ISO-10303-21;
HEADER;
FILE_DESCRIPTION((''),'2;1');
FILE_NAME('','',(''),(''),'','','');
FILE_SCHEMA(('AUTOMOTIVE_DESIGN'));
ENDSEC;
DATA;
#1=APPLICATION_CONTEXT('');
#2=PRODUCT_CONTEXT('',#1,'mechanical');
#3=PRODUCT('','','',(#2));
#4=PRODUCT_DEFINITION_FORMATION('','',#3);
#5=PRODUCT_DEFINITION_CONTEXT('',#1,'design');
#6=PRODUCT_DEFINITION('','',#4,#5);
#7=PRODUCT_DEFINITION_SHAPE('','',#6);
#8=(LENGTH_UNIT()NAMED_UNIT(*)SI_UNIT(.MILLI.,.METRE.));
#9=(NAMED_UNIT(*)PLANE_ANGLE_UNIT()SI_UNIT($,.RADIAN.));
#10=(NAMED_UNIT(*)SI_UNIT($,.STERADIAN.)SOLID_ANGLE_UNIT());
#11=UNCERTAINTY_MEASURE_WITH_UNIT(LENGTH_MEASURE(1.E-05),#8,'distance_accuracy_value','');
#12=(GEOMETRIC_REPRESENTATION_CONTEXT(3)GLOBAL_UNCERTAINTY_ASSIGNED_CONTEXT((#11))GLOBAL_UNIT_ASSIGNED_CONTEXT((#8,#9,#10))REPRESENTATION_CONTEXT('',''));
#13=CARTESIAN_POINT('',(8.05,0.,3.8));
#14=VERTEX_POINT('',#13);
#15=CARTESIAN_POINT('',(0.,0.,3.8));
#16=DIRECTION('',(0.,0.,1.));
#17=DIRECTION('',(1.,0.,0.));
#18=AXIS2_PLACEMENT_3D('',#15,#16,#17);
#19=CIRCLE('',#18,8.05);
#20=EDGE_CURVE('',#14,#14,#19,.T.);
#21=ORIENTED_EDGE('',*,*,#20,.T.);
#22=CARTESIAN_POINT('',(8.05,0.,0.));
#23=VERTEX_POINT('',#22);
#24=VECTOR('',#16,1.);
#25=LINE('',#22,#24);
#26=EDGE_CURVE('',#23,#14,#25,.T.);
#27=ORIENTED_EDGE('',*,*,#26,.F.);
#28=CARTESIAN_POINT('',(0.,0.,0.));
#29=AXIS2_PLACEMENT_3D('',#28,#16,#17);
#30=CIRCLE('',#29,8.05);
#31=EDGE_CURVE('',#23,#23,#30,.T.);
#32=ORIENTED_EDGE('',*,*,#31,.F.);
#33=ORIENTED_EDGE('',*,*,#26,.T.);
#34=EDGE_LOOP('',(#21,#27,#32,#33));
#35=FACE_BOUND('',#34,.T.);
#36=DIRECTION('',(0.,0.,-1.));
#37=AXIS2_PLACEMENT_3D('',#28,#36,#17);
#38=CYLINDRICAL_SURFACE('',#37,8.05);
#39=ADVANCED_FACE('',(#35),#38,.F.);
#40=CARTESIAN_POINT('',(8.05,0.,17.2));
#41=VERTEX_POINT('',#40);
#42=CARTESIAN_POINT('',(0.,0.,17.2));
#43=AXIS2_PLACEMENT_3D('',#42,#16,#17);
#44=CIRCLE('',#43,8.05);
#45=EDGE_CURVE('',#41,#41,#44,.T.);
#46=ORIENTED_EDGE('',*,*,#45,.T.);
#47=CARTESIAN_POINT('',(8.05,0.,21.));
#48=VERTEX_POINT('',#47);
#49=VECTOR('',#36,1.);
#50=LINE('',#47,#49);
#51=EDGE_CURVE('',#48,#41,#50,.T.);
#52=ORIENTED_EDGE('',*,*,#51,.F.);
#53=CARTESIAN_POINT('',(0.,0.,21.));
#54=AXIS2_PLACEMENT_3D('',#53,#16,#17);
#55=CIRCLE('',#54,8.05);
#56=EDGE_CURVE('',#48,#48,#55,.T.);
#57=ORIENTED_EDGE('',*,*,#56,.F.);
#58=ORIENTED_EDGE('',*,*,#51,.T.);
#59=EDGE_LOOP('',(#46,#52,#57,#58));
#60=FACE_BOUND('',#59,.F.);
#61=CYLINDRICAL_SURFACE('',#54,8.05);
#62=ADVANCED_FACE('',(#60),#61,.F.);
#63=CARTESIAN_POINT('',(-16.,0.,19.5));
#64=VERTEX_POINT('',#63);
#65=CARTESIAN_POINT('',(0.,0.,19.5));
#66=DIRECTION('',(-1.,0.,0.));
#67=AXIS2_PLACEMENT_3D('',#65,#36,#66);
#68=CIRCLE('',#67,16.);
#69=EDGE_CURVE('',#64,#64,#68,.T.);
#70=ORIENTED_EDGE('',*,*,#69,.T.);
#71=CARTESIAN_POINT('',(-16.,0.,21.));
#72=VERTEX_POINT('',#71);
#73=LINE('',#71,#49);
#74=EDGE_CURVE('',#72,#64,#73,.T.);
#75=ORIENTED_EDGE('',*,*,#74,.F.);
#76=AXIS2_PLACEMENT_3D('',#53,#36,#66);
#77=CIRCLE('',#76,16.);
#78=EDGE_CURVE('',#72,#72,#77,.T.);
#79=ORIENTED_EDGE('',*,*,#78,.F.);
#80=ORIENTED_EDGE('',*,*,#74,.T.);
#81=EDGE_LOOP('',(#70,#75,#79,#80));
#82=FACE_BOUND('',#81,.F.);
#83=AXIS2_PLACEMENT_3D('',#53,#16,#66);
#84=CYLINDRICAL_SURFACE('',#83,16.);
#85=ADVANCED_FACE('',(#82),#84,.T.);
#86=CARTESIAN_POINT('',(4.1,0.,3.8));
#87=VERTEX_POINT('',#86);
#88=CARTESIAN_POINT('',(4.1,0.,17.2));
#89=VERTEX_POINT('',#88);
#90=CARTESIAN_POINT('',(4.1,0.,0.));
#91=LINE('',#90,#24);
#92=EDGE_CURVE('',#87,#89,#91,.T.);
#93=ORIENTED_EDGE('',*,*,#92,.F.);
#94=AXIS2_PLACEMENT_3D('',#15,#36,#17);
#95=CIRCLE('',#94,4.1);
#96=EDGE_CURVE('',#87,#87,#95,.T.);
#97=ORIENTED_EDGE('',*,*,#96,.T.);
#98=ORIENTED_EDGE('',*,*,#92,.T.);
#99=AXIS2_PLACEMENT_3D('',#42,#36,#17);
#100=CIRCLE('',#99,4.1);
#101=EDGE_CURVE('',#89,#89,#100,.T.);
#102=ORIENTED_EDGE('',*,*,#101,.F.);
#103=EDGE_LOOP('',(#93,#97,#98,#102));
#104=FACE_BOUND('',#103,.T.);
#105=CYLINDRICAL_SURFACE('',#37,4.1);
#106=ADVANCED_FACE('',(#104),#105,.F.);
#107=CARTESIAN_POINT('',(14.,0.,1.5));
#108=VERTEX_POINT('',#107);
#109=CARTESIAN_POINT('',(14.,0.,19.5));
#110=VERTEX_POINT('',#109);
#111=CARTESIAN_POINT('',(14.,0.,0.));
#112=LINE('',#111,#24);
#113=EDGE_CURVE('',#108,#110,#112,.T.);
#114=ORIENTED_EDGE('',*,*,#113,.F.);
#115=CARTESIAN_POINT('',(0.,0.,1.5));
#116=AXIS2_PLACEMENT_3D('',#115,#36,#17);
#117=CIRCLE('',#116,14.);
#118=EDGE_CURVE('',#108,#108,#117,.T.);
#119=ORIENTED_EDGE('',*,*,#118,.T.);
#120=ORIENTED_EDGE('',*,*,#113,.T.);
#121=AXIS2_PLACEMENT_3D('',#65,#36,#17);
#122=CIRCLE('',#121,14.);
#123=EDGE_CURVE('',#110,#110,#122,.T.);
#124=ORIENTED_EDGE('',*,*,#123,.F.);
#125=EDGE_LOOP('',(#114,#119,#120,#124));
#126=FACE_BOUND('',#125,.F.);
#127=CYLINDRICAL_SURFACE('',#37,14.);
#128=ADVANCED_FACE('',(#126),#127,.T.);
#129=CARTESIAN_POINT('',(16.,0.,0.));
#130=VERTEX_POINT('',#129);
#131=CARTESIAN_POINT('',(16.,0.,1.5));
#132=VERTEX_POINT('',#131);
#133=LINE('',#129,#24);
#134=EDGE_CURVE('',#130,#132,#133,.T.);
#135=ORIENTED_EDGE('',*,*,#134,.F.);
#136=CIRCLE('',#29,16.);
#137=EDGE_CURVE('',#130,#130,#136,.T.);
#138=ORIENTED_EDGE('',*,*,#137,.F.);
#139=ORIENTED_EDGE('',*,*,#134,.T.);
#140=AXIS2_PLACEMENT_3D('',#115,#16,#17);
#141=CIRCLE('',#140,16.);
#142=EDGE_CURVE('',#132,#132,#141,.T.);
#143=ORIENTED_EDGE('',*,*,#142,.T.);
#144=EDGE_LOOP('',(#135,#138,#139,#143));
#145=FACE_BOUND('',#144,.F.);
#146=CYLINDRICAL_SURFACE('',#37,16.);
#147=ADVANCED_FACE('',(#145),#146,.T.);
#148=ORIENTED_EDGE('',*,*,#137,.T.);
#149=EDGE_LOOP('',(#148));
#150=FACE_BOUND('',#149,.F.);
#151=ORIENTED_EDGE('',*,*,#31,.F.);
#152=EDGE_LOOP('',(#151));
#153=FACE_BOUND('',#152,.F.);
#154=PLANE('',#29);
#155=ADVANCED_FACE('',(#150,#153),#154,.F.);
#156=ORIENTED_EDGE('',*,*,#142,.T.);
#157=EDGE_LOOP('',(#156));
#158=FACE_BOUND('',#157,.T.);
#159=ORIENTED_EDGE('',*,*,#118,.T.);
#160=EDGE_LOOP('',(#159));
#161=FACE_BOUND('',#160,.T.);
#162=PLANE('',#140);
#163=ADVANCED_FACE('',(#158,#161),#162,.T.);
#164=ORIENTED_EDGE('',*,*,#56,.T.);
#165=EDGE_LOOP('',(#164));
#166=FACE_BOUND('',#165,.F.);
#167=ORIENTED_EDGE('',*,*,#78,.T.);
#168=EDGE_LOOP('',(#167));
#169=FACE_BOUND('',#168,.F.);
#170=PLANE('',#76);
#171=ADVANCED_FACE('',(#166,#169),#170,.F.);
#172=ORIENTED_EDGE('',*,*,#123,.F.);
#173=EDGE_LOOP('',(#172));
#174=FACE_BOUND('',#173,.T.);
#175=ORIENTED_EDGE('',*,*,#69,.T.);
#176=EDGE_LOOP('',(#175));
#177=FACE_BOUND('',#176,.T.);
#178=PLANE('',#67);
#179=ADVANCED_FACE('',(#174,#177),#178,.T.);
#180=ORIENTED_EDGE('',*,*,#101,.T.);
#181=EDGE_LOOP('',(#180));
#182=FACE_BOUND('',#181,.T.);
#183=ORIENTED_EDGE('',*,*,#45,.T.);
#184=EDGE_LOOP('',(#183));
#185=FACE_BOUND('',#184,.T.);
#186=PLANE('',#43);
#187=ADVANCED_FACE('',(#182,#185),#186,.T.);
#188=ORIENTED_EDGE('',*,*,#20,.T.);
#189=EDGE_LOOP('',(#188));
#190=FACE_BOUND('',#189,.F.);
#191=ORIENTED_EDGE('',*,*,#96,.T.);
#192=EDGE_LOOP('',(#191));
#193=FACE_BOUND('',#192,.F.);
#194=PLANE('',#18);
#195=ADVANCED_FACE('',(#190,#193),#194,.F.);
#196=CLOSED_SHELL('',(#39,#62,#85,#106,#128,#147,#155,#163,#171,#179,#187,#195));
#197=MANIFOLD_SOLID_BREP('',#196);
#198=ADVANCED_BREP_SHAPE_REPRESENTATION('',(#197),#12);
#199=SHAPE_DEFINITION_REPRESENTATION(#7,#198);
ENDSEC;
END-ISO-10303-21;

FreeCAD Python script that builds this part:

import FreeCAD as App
import Part
import Sketcher
Q = App.Units.Quantity

doc = App.newDocument("Part")
body = doc.addObject("PartDesign::Body", "Body")

# Sketch on XY plane
sketch1 = body.newObject("Sketcher::SketchObject", "Sketch")
sketch1.AttachmentSupport = (doc.getObject("XY_Plane"), [""])
sketch1.MapMode = "FlatFace"
sketch1.addGeometry(Part.Circle(App.Vector(0, 0, 0), App.Vector(0, 0, 1), 14), False)
sketch1.addGeometry(Part.Circle(App.Vector(0, 0, 0), App.Vector(0, 0, 1), 4.1), False)
sketch1.addConstraint(Sketcher.Constraint("Coincident", 0, 3, -1, 1))
sketch1.addConstraint(Sketcher.Constraint("Coincident", 1, 3, -1, 1))
sketch1.addConstraint(Sketcher.Constraint("Diameter", 0, Q("28 mm")))
sketch1.addConstraint(Sketcher.Constraint("Diameter", 1, Q("8.2 mm")))
pad1 = body.newObject("PartDesign::Pad", "Pad")
pad1.Profile = sketch1
pad1.Length = 21

# Sketch on XY plane
sketch2 = body.newObject("Sketcher::SketchObject", "Sketch001")
sketch2.AttachmentSupport = (doc.getObject("XY_Plane"), [""])
sketch2.MapMode = "FlatFace"
sketch2.AttachmentOffset = App.Placement(App.Vector(0, 0, 21), App.Rotation())
sketch2.addGeometry(Part.Circle(App.Vector(0, 0, 0), App.Vector(0, 0, 1), 16), False)
sketch2.addGeometry(Part.Circle(App.Vector(0, 0, 0), App.Vector(0, 0, 1), 6.25), False)
sketch2.addConstraint(Sketcher.Constraint("Coincident", 0, 3, -1, 1))
sketch2.addConstraint(Sketcher.Constraint("Coincident", 1, 3, -1, 1))
sketch2.addConstraint(Sketcher.Constraint("Diameter", 0, Q("32 mm")))
sketch2.addConstraint(Sketcher.Constraint("Diameter", 1, Q("12.5 mm")))
pad2 = body.newObject("PartDesign::Pad", "Pad001")
pad2.Profile = sketch2
pad2.Length = 1.5
pad2.Reversed = True

# Sketch on XY plane
sketch3 = body.newObject("Sketcher::SketchObject", "Sketch002")
sketch3.AttachmentSupport = (doc.getObject("XY_Plane"), [""])
sketch3.MapMode = "FlatFace"
sketch3.addGeometry(Part.Circle(App.Vector(0, 0, 0), App.Vector(0, 0, 1), 16), False)
sketch3.addGeometry(Part.Circle(App.Vector(0, 0, 0), App.Vector(0, 0, 1), 6.25), False)
sketch3.addConstraint(Sketcher.Constraint("Coincident", 0, 3, -1, 1))
sketch3.addConstraint(Sketcher.Constraint("Coincident", 1, 3, -1, 1))
sketch3.addConstraint(Sketcher.Constraint("Diameter", 0, Q("32 mm")))
sketch3.addConstraint(Sketcher.Constraint("Diameter", 1, Q("12.5 mm")))
pad3 = body.newObject("PartDesign::Pad", "Pad002")
pad3.Profile = sketch3
pad3.Length = 1.5

# Sketch on XY plane
sketch4 = body.newObject("Sketcher::SketchObject", "Sketch003")
sketch4.AttachmentSupport = (doc.getObject("XY_Plane"), [""])
sketch4.MapMode = "FlatFace"
sketch4.AttachmentOffset = App.Placement(App.Vector(0, 0, 21), App.Rotation())
sketch4.addGeometry(Part.Circle(App.Vector(0, 0, 0), App.Vector(0, 0, 1), 8.05), False)
sketch4.addConstraint(Sketcher.Constraint("Coincident", 0, 3, -1, 1))
sketch4.addConstraint(Sketcher.Constraint("Diameter", 0, Q("16.1 mm")))
pocket1 = body.newObject("PartDesign::Pocket", "Pocket")
pocket1.Profile = sketch4
pocket1.Length = 3.8

# Sketch on XY plane
sketch5 = body.newObject("Sketcher::SketchObject", "Sketch004")
sketch5.AttachmentSupport = (doc.getObject("XY_Plane"), [""])
sketch5.MapMode = "FlatFace"
sketch5.addGeometry(Part.Circle(App.Vector(0, 0, 0), App.Vector(0, 0, 1), 8.05), False)
sketch5.addConstraint(Sketcher.Constraint("Coincident", 0, 3, -1, 1))
sketch5.addConstraint(Sketcher.Constraint("Diameter", 0, Q("16.1 mm")))
pocket2 = body.newObject("PartDesign::Pocket", "Pocket001")
pocket2.Profile = sketch5
pocket2.Length = 3.8
pocket2.Reversed = True

doc.recompute()
